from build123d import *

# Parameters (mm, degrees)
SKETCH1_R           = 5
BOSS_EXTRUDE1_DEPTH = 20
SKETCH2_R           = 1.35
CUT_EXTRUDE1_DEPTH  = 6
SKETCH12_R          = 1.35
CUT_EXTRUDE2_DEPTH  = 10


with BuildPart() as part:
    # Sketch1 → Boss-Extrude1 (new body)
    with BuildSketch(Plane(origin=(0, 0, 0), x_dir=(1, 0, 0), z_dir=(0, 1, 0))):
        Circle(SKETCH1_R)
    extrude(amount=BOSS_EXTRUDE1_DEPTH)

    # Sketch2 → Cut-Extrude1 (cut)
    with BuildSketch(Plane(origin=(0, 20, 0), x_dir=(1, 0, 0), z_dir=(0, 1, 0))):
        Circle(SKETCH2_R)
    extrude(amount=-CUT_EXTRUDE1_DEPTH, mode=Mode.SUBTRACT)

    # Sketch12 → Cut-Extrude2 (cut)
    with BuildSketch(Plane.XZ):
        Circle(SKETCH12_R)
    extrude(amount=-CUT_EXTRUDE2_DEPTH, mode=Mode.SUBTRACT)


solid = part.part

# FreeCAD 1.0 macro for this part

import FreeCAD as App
import Part
import Sketcher

doc = App.newDocument("Part")
body = doc.addObject("PartDesign::Body", "Body")

sketch1 = body.newObject("Sketcher::SketchObject", "Sketch")
sketch1.AttachmentSupport = (doc.getObject("XZ_Plane"), [""])
sketch1.MapMode = "FlatFace"
sketch1.addGeometry(Part.Circle(App.Vector(0, 0, 0), App.Vector(0, 0, 1), 5), False)
sketch1.addConstraint(Sketcher.Constraint("Coincident", 0, 3, -1, 1))
sketch1.addConstraint(Sketcher.Constraint("Diameter", 0, 10.0))
pad1 = body.newObject("PartDesign::Pad", "Pad")
pad1.Profile = sketch1
pad1.Length = 20
pad1.Reversed = True

sketch2 = body.newObject("Sketcher::SketchObject", "Sketch001")
sketch2.AttachmentSupport = (doc.getObject("XZ_Plane"), [""])
sketch2.MapMode = "FlatFace"
sketch2.AttachmentOffset = App.Placement(App.Vector(0, 0, -20), App.Rotation())
sketch2.addGeometry(Part.Circle(App.Vector(0, 0, 0), App.Vector(0, 0, 1), 1.35), False)
sketch2.addConstraint(Sketcher.Constraint("Coincident", 0, 3, -1, 1))
sketch2.addConstraint(Sketcher.Constraint("Diameter", 0, 2.7))
pocket1 = body.newObject("PartDesign::Pocket", "Pocket")
pocket1.Profile = sketch2
pocket1.Length = 6
pocket1.Reversed = True

sketch3 = body.newObject("Sketcher::SketchObject", "Sketch002")
sketch3.AttachmentSupport = (doc.getObject("XZ_Plane"), [""])
sketch3.MapMode = "FlatFace"
sketch3.addGeometry(Part.Circle(App.Vector(0, 0, 0), App.Vector(0, 0, 1), 1.35), False)
sketch3.addConstraint(Sketcher.Constraint("Coincident", 0, 3, -1, 1))
sketch3.addConstraint(Sketcher.Constraint("Diameter", 0, 2.7))
pocket2 = body.newObject("PartDesign::Pocket", "Pocket001")
pocket2.Profile = sketch3
pocket2.Length = 10

doc.recompute()
